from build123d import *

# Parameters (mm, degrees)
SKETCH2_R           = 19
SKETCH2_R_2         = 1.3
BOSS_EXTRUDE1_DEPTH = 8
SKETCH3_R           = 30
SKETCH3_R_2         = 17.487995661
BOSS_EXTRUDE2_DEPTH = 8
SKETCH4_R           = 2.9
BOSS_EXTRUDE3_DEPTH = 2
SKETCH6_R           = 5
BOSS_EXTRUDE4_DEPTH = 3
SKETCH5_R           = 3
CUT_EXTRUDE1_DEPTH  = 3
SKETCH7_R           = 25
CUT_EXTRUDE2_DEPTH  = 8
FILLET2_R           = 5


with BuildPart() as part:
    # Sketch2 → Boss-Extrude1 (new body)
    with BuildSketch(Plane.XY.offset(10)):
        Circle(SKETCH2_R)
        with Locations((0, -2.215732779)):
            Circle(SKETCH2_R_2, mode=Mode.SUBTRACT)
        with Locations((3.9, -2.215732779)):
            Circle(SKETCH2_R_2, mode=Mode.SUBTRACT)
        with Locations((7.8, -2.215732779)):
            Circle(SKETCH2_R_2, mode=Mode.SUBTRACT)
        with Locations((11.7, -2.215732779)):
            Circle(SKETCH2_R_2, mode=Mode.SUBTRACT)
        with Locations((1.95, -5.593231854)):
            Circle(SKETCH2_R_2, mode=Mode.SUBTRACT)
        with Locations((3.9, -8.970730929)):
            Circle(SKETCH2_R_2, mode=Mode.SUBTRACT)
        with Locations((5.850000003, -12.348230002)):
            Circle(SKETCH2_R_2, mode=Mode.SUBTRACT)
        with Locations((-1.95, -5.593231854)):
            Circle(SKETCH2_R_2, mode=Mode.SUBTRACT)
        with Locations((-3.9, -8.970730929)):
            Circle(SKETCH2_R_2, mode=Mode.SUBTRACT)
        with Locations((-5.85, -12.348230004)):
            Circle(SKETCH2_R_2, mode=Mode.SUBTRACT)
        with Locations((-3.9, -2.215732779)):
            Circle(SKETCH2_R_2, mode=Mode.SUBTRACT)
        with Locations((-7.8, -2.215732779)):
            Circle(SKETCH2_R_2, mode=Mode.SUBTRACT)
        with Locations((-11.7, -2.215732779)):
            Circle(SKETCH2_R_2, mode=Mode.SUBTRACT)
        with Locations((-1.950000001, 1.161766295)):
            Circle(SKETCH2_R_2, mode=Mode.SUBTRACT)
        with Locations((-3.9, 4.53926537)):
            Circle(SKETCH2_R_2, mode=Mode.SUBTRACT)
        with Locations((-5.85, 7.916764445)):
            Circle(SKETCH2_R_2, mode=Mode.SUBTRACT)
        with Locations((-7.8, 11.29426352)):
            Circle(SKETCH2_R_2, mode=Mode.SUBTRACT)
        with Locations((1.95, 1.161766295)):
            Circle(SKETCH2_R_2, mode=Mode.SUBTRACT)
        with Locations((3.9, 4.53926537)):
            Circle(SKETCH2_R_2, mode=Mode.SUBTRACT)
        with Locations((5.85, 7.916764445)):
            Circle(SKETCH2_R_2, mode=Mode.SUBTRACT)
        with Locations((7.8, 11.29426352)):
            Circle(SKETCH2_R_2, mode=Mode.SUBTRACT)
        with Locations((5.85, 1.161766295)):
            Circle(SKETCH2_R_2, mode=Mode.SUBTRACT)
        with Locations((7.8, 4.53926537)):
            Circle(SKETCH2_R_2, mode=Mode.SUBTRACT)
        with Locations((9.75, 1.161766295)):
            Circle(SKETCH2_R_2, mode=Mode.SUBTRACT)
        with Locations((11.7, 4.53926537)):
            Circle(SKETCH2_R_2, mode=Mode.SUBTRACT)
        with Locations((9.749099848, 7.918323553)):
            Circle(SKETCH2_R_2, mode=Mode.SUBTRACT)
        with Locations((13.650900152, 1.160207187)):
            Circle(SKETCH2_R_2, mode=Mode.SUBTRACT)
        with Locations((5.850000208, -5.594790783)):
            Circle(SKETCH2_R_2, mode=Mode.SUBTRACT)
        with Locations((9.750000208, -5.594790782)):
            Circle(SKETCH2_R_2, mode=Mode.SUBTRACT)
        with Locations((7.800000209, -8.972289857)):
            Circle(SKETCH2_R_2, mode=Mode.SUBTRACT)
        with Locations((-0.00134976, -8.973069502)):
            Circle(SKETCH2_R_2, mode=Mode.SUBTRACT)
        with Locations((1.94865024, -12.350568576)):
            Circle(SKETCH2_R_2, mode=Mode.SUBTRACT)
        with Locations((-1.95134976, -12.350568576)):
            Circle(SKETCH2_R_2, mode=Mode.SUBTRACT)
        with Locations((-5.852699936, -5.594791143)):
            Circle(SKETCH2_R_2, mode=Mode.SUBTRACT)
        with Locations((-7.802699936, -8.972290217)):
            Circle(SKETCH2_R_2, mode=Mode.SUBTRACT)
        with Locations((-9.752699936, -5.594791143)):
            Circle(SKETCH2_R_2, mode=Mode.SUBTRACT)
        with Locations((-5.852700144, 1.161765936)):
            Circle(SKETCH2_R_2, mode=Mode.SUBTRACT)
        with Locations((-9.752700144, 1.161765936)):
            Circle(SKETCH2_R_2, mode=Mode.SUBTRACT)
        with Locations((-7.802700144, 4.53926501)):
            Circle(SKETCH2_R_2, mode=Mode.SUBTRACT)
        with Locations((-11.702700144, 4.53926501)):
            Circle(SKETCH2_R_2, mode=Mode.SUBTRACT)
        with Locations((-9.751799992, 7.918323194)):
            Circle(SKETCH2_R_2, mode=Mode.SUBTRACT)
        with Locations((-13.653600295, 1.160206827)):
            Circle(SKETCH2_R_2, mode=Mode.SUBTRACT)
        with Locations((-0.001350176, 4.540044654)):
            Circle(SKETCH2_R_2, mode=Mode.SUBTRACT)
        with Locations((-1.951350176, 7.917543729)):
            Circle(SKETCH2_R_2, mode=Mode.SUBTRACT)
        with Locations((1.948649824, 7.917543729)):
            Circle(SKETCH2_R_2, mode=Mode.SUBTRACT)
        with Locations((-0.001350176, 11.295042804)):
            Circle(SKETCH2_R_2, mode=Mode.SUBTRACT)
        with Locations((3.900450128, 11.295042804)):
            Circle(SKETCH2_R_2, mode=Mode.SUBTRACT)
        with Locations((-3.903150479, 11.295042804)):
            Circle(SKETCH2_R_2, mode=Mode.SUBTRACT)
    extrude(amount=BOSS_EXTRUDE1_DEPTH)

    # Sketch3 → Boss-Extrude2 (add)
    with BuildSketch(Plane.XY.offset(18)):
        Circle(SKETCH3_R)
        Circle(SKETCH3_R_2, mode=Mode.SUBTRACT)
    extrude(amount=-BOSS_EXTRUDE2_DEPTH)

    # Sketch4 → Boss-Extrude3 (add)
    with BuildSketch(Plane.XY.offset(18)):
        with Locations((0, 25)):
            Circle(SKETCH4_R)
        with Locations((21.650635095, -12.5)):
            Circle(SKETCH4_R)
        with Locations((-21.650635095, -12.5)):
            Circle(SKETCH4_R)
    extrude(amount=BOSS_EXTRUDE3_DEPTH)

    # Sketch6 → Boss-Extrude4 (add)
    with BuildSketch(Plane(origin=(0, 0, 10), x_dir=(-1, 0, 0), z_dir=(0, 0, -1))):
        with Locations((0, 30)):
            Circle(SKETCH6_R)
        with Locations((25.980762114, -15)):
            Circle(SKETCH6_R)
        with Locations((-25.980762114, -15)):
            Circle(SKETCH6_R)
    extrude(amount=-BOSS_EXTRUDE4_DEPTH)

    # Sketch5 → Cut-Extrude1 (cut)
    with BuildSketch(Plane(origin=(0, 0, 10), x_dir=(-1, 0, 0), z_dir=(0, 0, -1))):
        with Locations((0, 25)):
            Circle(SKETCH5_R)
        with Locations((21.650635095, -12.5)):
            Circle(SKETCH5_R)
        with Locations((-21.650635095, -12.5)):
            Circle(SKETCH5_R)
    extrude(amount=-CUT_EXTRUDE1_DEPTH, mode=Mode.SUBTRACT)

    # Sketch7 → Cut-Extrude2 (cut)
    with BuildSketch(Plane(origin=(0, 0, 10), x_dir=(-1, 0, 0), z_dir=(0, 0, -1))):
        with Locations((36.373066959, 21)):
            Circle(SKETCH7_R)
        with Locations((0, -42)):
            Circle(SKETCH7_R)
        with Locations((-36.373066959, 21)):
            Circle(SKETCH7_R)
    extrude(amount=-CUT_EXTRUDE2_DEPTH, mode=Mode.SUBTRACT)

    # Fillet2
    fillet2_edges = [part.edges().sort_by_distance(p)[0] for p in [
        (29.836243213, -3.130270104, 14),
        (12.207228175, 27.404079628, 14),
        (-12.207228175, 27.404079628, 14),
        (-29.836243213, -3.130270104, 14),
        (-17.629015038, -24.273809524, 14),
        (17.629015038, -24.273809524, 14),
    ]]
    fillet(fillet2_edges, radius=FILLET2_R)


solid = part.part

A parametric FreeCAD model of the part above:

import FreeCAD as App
import Part
import Sketcher

V = App.Vector
Q = App.Units.Quantity


def edges_at(feature, points):
    """Names of the edges that pass closest to the given points."""
    edges = feature.Shape.Edges
    near = lambda p: min(range(len(edges)), key=lambda i: edges[i].distToShape(Part.Vertex(*p))[0])
    return sorted({f"Edge{near(p) + 1}" for p in points})

doc = App.newDocument("Part")
body = doc.addObject("PartDesign::Body", "Body")

# Sketch on XY plane
sketch1 = body.newObject("Sketcher::SketchObject", "Sketch")
sketch1.AttachmentSupport = (doc.getObject("XY_Plane"), [""])
sketch1.MapMode = "FlatFace"
sketch1.AttachmentOffset = App.Placement(V(0, 0, 10), App.Rotation())
sketch1.addGeometry(Part.Circle(V(0, 0, 0), V(0, 0, 1), 19), False)
sketch1.addGeometry(Part.Circle(V(-7.8, -9, 0), V(0, 0, 1), 1.3), False)
sketch1.addGeometry(Part.Circle(V(-5.8, -12.3, 0), V(0, 0, 1), 1.3), False)
sketch1.addGeometry(Part.Circle(V(-2, -12.4, 0), V(0, 0, 1), 1.3), False)
sketch1.addGeometry(Part.Circle(V(-3.9, -9, 0), V(0, 0, 1), 1.3), False)
sketch1.addGeometry(Part.Circle(V(-9.8, -5.6, 0), V(0, 0, 1), 1.3), False)
sketch1.addGeometry(Part.Circle(V(-11.7, -2.2, 0), V(0, 0, 1), 1.3), False)
sketch1.addGeometry(Part.Circle(V(-7.8, -2.2, 0), V(0, 0, 1), 1.3), False)
sketch1.addGeometry(Part.Circle(V(-5.9, -5.6, 0), V(0, 0, 1), 1.3), False)
sketch1.addGeometry(Part.Circle(V(-1.9, -5.6, 0), V(0, 0, 1), 1.3), False)
sketch1.addGeometry(Part.Circle(V(-3.9, -2.2, 0), V(0, 0, 1), 1.3), False)
sketch1.addGeometry(Part.Circle(V(1.9, -12.4, 0), V(0, 0, 1), 1.3), False)
sketch1.addGeometry(Part.Circle(V(5.9, -12.3, 0), V(0, 0, 1), 1.3), False)
sketch1.addGeometry(Part.Circle(V(0, -9, 0), V(0, 0, 1), 1.3), False)
sketch1.addGeometry(Part.Circle(V(3.9, -9, 0), V(0, 0, 1), 1.3), False)
sketch1.addGeometry(Part.Circle(V(7.8, -9, 0), V(0, 0, 1), 1.3), False)
sketch1.addGeometry(Part.Circle(V(1.9, -5.6, 0), V(0, 0, 1), 1.3), False)
sketch1.addGeometry(Part.Circle(V(5.9, -5.6, 0), V(0, 0, 1), 1.3), False)
sketch1.addGeometry(Part.Circle(V(0, -2.2, 0), V(0, 0, 1), 1.3), False)
sketch1.addGeometry(Part.Circle(V(3.9, -2.2, 0), V(0, 0, 1), 1.3), False)
sketch1.addGeometry(Part.Circle(V(9.8, -5.6, 0), V(0, 0, 1), 1.3), False)
sketch1.addGeometry(Part.Circle(V(7.8, -2.2, 0), V(0, 0, 1), 1.3), False)
sketch1.addGeometry(Part.Circle(V(11.7, -2.2, 0), V(0, 0, 1), 1.3), False)
sketch1.addGeometry(Part.Circle(V(-13.7, 1.2, 0), V(0, 0, 1), 1.3), False)
sketch1.addGeometry(Part.Circle(V(-9.8, 1.2, 0), V(0, 0, 1), 1.3), False)
sketch1.addGeometry(Part.Circle(V(-11.7, 4.5, 0), V(0, 0, 1), 1.3), False)
sketch1.addGeometry(Part.Circle(V(-7.8, 4.5, 0), V(0, 0, 1), 1.3), False)
sketch1.addGeometry(Part.Circle(V(-5.9, 1.2, 0), V(0, 0, 1), 1.3), False)
sketch1.addGeometry(Part.Circle(V(-2, 1.2, 0), V(0, 0, 1), 1.3), False)
sketch1.addGeometry(Part.Circle(V(-3.9, 4.5, 0), V(0, 0, 1), 1.3), False)
sketch1.addGeometry(Part.Circle(V(0, 4.5, 0), V(0, 0, 1), 1.3), False)
sketch1.addGeometry(Part.Circle(V(-9.8, 7.9, 0), V(0, 0, 1), 1.3), False)
sketch1.addGeometry(Part.Circle(V(-7.8, 11.3, 0), V(0, 0, 1), 1.3), False)
sketch1.addGeometry(Part.Circle(V(-5.8, 7.9, 0), V(0, 0, 1), 1.3), False)
sketch1.addGeometry(Part.Circle(V(-2, 7.9, 0), V(0, 0, 1), 1.3), False)
sketch1.addGeometry(Part.Circle(V(-3.9, 11.3, 0), V(0, 0, 1), 1.3), False)
sketch1.addGeometry(Part.Circle(V(0, 11.3, 0), V(0, 0, 1), 1.3), False)
sketch1.addGeometry(Part.Circle(V(1.9, 1.2, 0), V(0, 0, 1), 1.3), False)
sketch1.addGeometry(Part.Circle(V(5.8, 1.2, 0), V(0, 0, 1), 1.3), False)
sketch1.addGeometry(Part.Circle(V(3.9, 4.5, 0), V(0, 0, 1), 1.3), False)
sketch1.addGeometry(Part.Circle(V(9.8, 1.2, 0), V(0, 0, 1), 1.3), False)
sketch1.addGeometry(Part.Circle(V(13.7, 1.2, 0), V(0, 0, 1), 1.3), False)
sketch1.addGeometry(Part.Circle(V(7.8, 4.5, 0), V(0, 0, 1), 1.3), False)
sketch1.addGeometry(Part.Circle(V(11.7, 4.5, 0), V(0, 0, 1), 1.3), False)
sketch1.addGeometry(Part.Circle(V(1.9, 7.9, 0), V(0, 0, 1), 1.3), False)
sketch1.addGeometry(Part.Circle(V(5.8, 7.9, 0), V(0, 0, 1), 1.3), False)
sketch1.addGeometry(Part.Circle(V(3.9, 11.3, 0), V(0, 0, 1), 1.3), False)
sketch1.addGeometry(Part.Circle(V(9.7, 7.9, 0), V(0, 0, 1), 1.3), False)
sketch1.addGeometry(Part.Circle(V(7.8, 11.3, 0), V(0, 0, 1), 1.3), False)
sketch1.addConstraint(Sketcher.Constraint("Coincident", 0, 3, -1, 1))
sketch1.addConstraint(Sketcher.Constraint("Equal", 1, 2))
sketch1.addConstraint(Sketcher.Constraint("Equal", 2, 3))
sketch1.addConstraint(Sketcher.Constraint("Equal", 3, 4))
sketch1.addConstraint(Sketcher.Constraint("Equal", 4, 5))
sketch1.addConstraint(Sketcher.Constraint("Equal", 5, 6))
sketch1.addConstraint(Sketcher.Constraint("Equal", 6, 7))
sketch1.addConstraint(Sketcher.Constraint("Equal", 7, 8))
sketch1.addConstraint(Sketcher.Constraint("Equal", 8, 9))
sketch1.addConstraint(Sketcher.Constraint("Equal", 9, 10))
sketch1.addConstraint(Sketcher.Constraint("Equal", 10, 11))
sketch1.addConstraint(Sketcher.Constraint("Equal", 11, 12))
sketch1.addConstraint(Sketcher.Constraint("Equal", 12, 13))
sketch1.addConstraint(Sketcher.Constraint("Equal", 13, 14))
sketch1.addConstraint(Sketcher.Constraint("Equal", 14, 15))
sketch1.addConstraint(Sketcher.Constraint("Equal", 15, 16))
sketch1.addConstraint(Sketcher.Constraint("Equal", 16, 17))
sketch1.addConstraint(Sketcher.Constraint("Equal", 17, 18))
sketch1.addConstraint(Sketcher.Constraint("Equal", 18, 19))
sketch1.addConstraint(Sketcher.Constraint("Equal", 19, 20))
sketch1.addConstraint(Sketcher.Constraint("Equal", 20, 21))
sketch1.addConstraint(Sketcher.Constraint("Equal", 21, 22))
sketch1.addConstraint(Sketcher.Constraint("Equal", 22, 23))
sketch1.addConstraint(Sketcher.Constraint("Equal", 23, 24))
sketch1.addConstraint(Sketcher.Constraint("Equal", 24, 25))
sketch1.addConstraint(Sketcher.Constraint("Equal", 25, 26))
sketch1.addConstraint(Sketcher.Constraint("Equal", 26, 27))
sketch1.addConstraint(Sketcher.Constraint("Equal", 27, 28))
sketch1.addConstraint(Sketcher.Constraint("Equal", 28, 29))
sketch1.addConstraint(Sketcher.Constraint("Equal", 29, 30))
sketch1.addConstraint(Sketcher.Constraint("Equal", 30, 31))
sketch1.addConstraint(Sketcher.Constraint("Equal", 31, 32))
sketch1.addConstraint(Sketcher.Constraint("Equal", 32, 33))
sketch1.addConstraint(Sketcher.Constraint("Equal", 33, 34))
sketch1.addConstraint(Sketcher.Constraint("Equal", 34, 35))
sketch1.addConstraint(Sketcher.Constraint("Equal", 35, 36))
sketch1.addConstraint(Sketcher.Constraint("Equal", 36, 37))
sketch1.addConstraint(Sketcher.Constraint("Equal", 37, 38))
sketch1.addConstraint(Sketcher.Constraint("Equal", 38, 39))
sketch1.addConstraint(Sketcher.Constraint("Equal", 39, 40))
sketch1.addConstraint(Sketcher.Constraint("Equal", 40, 41))
sketch1.addConstraint(Sketcher.Constraint("Equal", 41, 42))
sketch1.addConstraint(Sketcher.Constraint("Equal", 42, 43))
sketch1.addConstraint(Sketcher.Constraint("Equal", 43, 44))
sketch1.addConstraint(Sketcher.Constraint("Equal", 44, 45))
sketch1.addConstraint(Sketcher.Constraint("Equal", 45, 46))
sketch1.addConstraint(Sketcher.Constraint("Equal", 46, 47))
sketch1.addConstraint(Sketcher.Constraint("Equal", 47, 48))
sketch1.addConstraint(Sketcher.Constraint("Symmetric", 2, 3, 12, 3, -2))
sketch1.addConstraint(Sketcher.Constraint("Symmetric", 4, 3, 14, 3, -2))
sketch1.addConstraint(Sketcher.Constraint("Symmetric", 9, 3, 16, 3, -2))
sketch1.addConstraint(Sketcher.Constraint("Symmetric", 10, 3, 19, 3, -2))
sketch1.addConstraint(Sketcher.Constraint("Symmetric", 7, 3, 21, 3, -2))
sketch1.addConstraint(Sketcher.Constraint("Symmetric", 6, 3, 22, 3, -2))
sketch1.addConstraint(Sketcher.Constraint("Symmetric", 28, 3, 37, 3, -2))
sketch1.addConstraint(Sketcher.Constraint("Symmetric", 29, 3, 39, 3, -2))
sketch1.addConstraint(Sketcher.Constraint("Symmetric", 33, 3, 45, 3, -2))
sketch1.addConstraint(Sketcher.Constraint("Symmetric", 32, 3, 48, 3, -2))
sketch1.addConstraint(Sketcher.Constraint("PointOnObject", 18, 3, -2))
sketch1.addConstraint(Sketcher.Constraint("Horizontal", 6, 3, 7, 3))
sketch1.addConstraint(Sketcher.Constraint("Horizontal", 5, 3, 8, 3))
sketch1.addConstraint(Sketcher.Constraint("Horizontal", 7, 3, 10, 3))
sketch1.addConstraint(Sketcher.Constraint("Horizontal", 3, 3, 11, 3))
sketch1.addConstraint(Sketcher.Constraint("Horizontal", 1, 3, 15, 3))
sketch1.addConstraint(Sketcher.Constraint("Horizontal", 8, 3, 17, 3))
sketch1.addConstraint(Sketcher.Constraint("Horizontal", 10, 3, 18, 3))
sketch1.addConstraint(Sketcher.Constraint("Horizontal", 17, 3, 20, 3))
sketch1.addConstraint(Sketcher.Constraint("Horizontal", 25, 3, 26, 3))
sketch1.addConstraint(Sketcher.Constraint("Horizontal", 24, 3, 27, 3))
sketch1.addConstraint(Sketcher.Constraint("Horizontal", 27, 3, 28, 3))
sketch1.addConstraint(Sketcher.Constraint("Horizontal", 26, 3, 29, 3))
sketch1.addConstraint(Sketcher.Constraint("Horizontal", 35, 3, 36, 3))
sketch1.addConstraint(Sketcher.Constraint("Horizontal", 37, 3, 38, 3))
sketch1.addConstraint(Sketcher.Constraint("Horizontal", 38, 3, 40, 3))
sketch1.addConstraint(Sketcher.Constraint("Horizontal", 23, 3, 41, 3))
sketch1.addConstraint(Sketcher.Constraint("Horizontal", 39, 3, 42, 3))
sketch1.addConstraint(Sketcher.Constraint("Horizontal", 42, 3, 43, 3))
sketch1.addConstraint(Sketcher.Constraint("Horizontal", 34, 3, 44, 3))
sketch1.addConstraint(Sketcher.Constraint("Horizontal", 36, 3, 46, 3))
sketch1.addConstraint(Sketcher.Constraint("Horizontal", 31, 3, 47, 3))
sketch1.addConstraint(Sketcher.Constraint("Vertical", 4, 3, 10, 3))
sketch1.addConstraint(Sketcher.Constraint("Vertical", 12, 3, 17, 3))
sketch1.addConstraint(Sketcher.Constraint("Vertical", 15, 3, 21, 3))
sketch1.addConstraint(Sketcher.Constraint("Vertical", 5, 3, 24, 3))
sketch1.addConstraint(Sketcher.Constraint("Vertical", 1, 3, 26, 3))
sketch1.addConstraint(Sketcher.Constraint("Vertical", 8, 3, 27, 3))
sketch1.addConstraint(Sketcher.Constraint("Vertical", 9, 3, 28, 3))
sketch1.addConstraint(Sketcher.Constraint("Vertical", 10, 3, 29, 3))
sketch1.addConstraint(Sketcher.Constraint("Vertical", 13, 3, 30, 3))
sketch1.addConstraint(Sketcher.Constraint("Vertical", 7, 3, 32, 3))
sketch1.addConstraint(Sketcher.Constraint("Vertical", 2, 3, 33, 3))
sketch1.addConstraint(Sketcher.Constraint("Vertical", 3, 3, 34, 3))
sketch1.addConstraint(Sketcher.Constraint("Vertical", 30, 3, 36, 3))
sketch1.addConstraint(Sketcher.Constraint("Vertical", 17, 3, 38, 3))
sketch1.addConstraint(Sketcher.Constraint("Vertical", 20, 3, 40, 3))
sketch1.addConstraint(Sketcher.Constraint("Vertical", 21, 3, 42, 3))
sketch1.addConstraint(Sketcher.Constraint("Vertical", 22, 3, 43, 3))
sketch1.addConstraint(Sketcher.Constraint("Vertical", 11, 3, 44, 3))
sketch1.addConstraint(Sketcher.Constraint("Diameter", 0, Q("38 mm")))
sketch1.addConstraint(Sketcher.Constraint("Diameter", 1, Q("2.6 mm")))
sketch1.addConstraint(Sketcher.Constraint("DistanceX", 4, 3, -1, 1, Q("3.9 mm")))
sketch1.addConstraint(Sketcher.Constraint("DistanceX", 6, 3, -1, 1, Q("11.7 mm")))
sketch1.addConstraint(Sketcher.Constraint("DistanceX", 7, 3, -1, 1, Q("7.8 mm")))
sketch1.addConstraint(Sketcher.Constraint("DistanceX", 5, 3, 8, 3, Q("3.9 mm")))
sketch1.addConstraint(Sketcher.Constraint("DistanceX", 3, 3, 11, 3, Q("3.9 mm")))
sketch1.addConstraint(Sketcher.Constraint("DistanceX", 9, 3, 12, 3, Q("7.8 mm")))
sketch1.addConstraint(Sketcher.Constraint("DistanceX", 2, 3, 12, 3, Q("11.7 mm")))
sketch1.addConstraint(Sketcher.Constraint("DistanceX", 17, 3, 20, 3, Q("3.9 mm")))
sketch1.addConstraint(Sketcher.Constraint("DistanceX", 25, 3, 26, 3, Q("3.9 mm")))
sketch1.addConstraint(Sketcher.Constraint("DistanceX", 5, 3, 1, 3, Q("1.95 mm")))
sketch1.addConstraint(Sketcher.Constraint("DistanceX", 3, 3, 13, 3, Q("1.95 mm")))
sketch1.addConstraint(Sketcher.Constraint("DistanceY", 4, 3, 6, 3, Q("6.754998 mm")))
sketch1.addConstraint(Sketcher.Constraint("DistanceY", 12, 3, 9, 3, Q("6.754998 mm")))
sketch1.addConstraint(Sketcher.Constraint("DistanceY", 10, 3, 29, 3, Q("6.754998 mm")))
sketch1.addConstraint(Sketcher.Constraint("DistanceY", 26, 3, 32, 3, Q("6.754999 mm")))
sketch1.addConstraint(Sketcher.Constraint("DistanceY", 30, 3, 36, 3, Q("6.754998 mm")))
sketch1.addConstraint(Sketcher.Constraint("DistanceY", 38, 3, 45, 3, Q("6.754998 mm")))
sketch1.addConstraint(Sketcher.Constraint("DistanceX", 1, 3, -1, 1, Q("7.8027 mm")))
sketch1.addConstraint(Sketcher.Constraint("DistanceX", 23, 3, -1, 1, Q("13.6536 mm")))
sketch1.addConstraint(Sketcher.Constraint("DistanceX", 31, 3, -1, 1, Q("9.7518 mm")))
sketch1.addConstraint(Sketcher.Constraint("DistanceX", -1, 1, 41, 3, Q("13.6509 mm")))
sketch1.addConstraint(Sketcher.Constraint("DistanceX", -1, 1, 47, 3, Q("9.7491 mm")))
sketch1.addConstraint(Sketcher.Constraint("DistanceY", 2, 3, 4, 3, Q("3.377499 mm")))
sketch1.addConstraint(Sketcher.Constraint("DistanceY", 1, 3, 5, 3, Q("3.377499 mm")))
sketch1.addConstraint(Sketcher.Constraint("DistanceY", 3, 3, 13, 3, Q("3.377499 mm")))
sketch1.addConstraint(Sketcher.Constraint("DistanceY", 6, 3, 24, 3, Q("3.377499 mm")))
sketch1.addConstraint(Sketcher.Constraint("DistanceY", 30, 3, 34, 3, Q("3.377499 mm")))
sketch1.addConstraint(Sketcher.Constraint("DistanceX", 35, 3, 34, 3, Q("1.9518 mm")))
sketch1.addConstraint(Sketcher.Constraint("DistanceX", 44, 3, 46, 3, Q("1.9518 mm")))
sketch1.addConstraint(Sketcher.Constraint("DistanceY", 1, 3, -1, 1, Q("8.97229 mm")))
sketch1.addConstraint(Sketcher.Constraint("DistanceY", 2, 3, -1, 1, Q("12.34823 mm")))
sketch1.addConstraint(Sketcher.Constraint("DistanceX", 3, 3, -1, 1, Q("1.95135 mm")))
sketch1.addConstraint(Sketcher.Constraint("DistanceY", 3, 3, -1, 1, Q("12.350569 mm")))
sketch1.addConstraint(Sketcher.Constraint("DistanceY", 6, 3, 23, 3, Q("3.37594 mm")))
sketch1.addConstraint(Sketcher.Constraint("DistanceY", 29, 3, 30, 3, Q("0.000779 mm")))
sketch1.addConstraint(Sketcher.Constraint("DistanceY", 26, 3, 31, 3, Q("3.379058 mm")))
pad1 = body.newObject("PartDesign::Pad", "Pad")
pad1.Profile = sketch1
pad1.Length = 8

# Sketch on XY plane
sketch2 = body.newObject("Sketcher::SketchObject", "Sketch001")
sketch2.AttachmentSupport = (doc.getObject("XY_Plane"), [""])
sketch2.MapMode = "FlatFace"
sketch2.AttachmentOffset = App.Placement(V(0, 0, 18), App.Rotation())
sketch2.addGeometry(Part.Circle(V(0, 0, 0), V(0, 0, 1), 30), False)
sketch2.addGeometry(Part.Circle(V(0, 0, 0), V(0, 0, 1), 17), False)
sketch2.addConstraint(Sketcher.Constraint("Coincident", 0, 3, -1, 1))
sketch2.addConstraint(Sketcher.Constraint("Coincident", 1, 3, -1, 1))
sketch2.addConstraint(Sketcher.Constraint("Diameter", 0, Q("60 mm")))
sketch2.addConstraint(Sketcher.Constraint("Diameter", 1, Q("34.975991 mm")))
pad2 = body.newObject("PartDesign::Pad", "Pad001")
pad2.Profile = sketch2
pad2.Length = 8
pad2.Reversed = True

# Sketch on XY plane
sketch3 = body.newObject("Sketcher::SketchObject", "Sketch002")
sketch3.AttachmentSupport = (doc.getObject("XY_Plane"), [""])
sketch3.MapMode = "FlatFace"
sketch3.AttachmentOffset = App.Placement(V(0, 0, 18), App.Rotation())
sketch3.addGeometry(Part.Circle(V(0, 25, 0), V(0, 0, 1), 2.9), False)
sketch3.addGeometry(Part.Circle(V(21.7, -12.5, 0), V(0, 0, 1), 2.9), False)
sketch3.addGeometry(Part.Circle(V(-21.7, -12.5, 0), V(0, 0, 1), 2.9), False)
sketch3.addConstraint(Sketcher.Constraint("Equal", 0, 1))
sketch3.addConstraint(Sketcher.Constraint("Equal", 1, 2))
sketch3.addConstraint(Sketcher.Constraint("Symmetric", 1, 3, 2, 3, -2))
sketch3.addConstraint(Sketcher.Constraint("PointOnObject", 0, 3, -2))
sketch3.addConstraint(Sketcher.Constraint("Diameter", 0, Q("5.8 mm")))
sketch3.addConstraint(Sketcher.Constraint("DistanceY", -1, 1, 0, 3, Q("25 mm")))
sketch3.addConstraint(Sketcher.Constraint("DistanceY", 1, 3, -1, 1, Q("12.5 mm")))
sketch3.addConstraint(Sketcher.Constraint("DistanceX", 2, 3, 1, 3, Q("43.30127 mm")))
pad3 = body.newObject("PartDesign::Pad", "Pad002")
pad3.Profile = sketch3
pad3.Length = 2

# Sketch on XY plane
sketch4 = body.newObject("Sketcher::SketchObject", "Sketch003")
sketch4.AttachmentSupport = (doc.getObject("XY_Plane"), [""])
sketch4.MapMode = "FlatFace"
sketch4.AttachmentOffset = App.Placement(V(0, 0, 10), App.Rotation())
sketch4.addGeometry(Part.Circle(V(0, 30, 0), V(0, 0, 1), 5), False)
sketch4.addGeometry(Part.Circle(V(-26, -15, 0), V(0, 0, 1), 5), False)
sketch4.addGeometry(Part.Circle(V(26, -15, 0), V(0, 0, 1), 5), False)
sketch4.addConstraint(Sketcher.Constraint("Equal", 0, 1))
sketch4.addConstraint(Sketcher.Constraint("Equal", 1, 2))
sketch4.addConstraint(Sketcher.Constraint("Symmetric", 1, 3, 2, 3, -2))
sketch4.addConstraint(Sketcher.Constraint("PointOnObject", 0, 3, -2))
sketch4.addConstraint(Sketcher.Constraint("Diameter", 0, Q("10 mm")))
sketch4.addConstraint(Sketcher.Constraint("DistanceY", -1, 1, 0, 3, Q("30 mm")))
sketch4.addConstraint(Sketcher.Constraint("DistanceY", 1, 3, -1, 1, Q("15 mm")))
sketch4.addConstraint(Sketcher.Constraint("DistanceX", 1, 3, -1, 1, Q("25.980762 mm")))
pad4 = body.newObject("PartDesign::Pad", "Pad003")
pad4.Profile = sketch4
pad4.Length = 3

# Sketch on XY plane
sketch5 = body.newObject("Sketcher::SketchObject", "Sketch004")
sketch5.AttachmentSupport = (doc.getObject("XY_Plane"), [""])
sketch5.MapMode = "FlatFace"
sketch5.AttachmentOffset = App.Placement(V(0, 0, 10), App.Rotation())
sketch5.addGeometry(Part.Circle(V(0, 25, 0), V(0, 0, 1), 3), False)
sketch5.addGeometry(Part.Circle(V(-21.7, -12.5, 0), V(0, 0, 1), 3), False)
sketch5.addGeometry(Part.Circle(V(21.7, -12.5, 0), V(0, 0, 1), 3), False)
sketch5.addConstraint(Sketcher.Constraint("Equal", 0, 1))
sketch5.addConstraint(Sketcher.Constraint("Equal", 1, 2))
sketch5.addConstraint(Sketcher.Constraint("Symmetric", 1, 3, 2, 3, -2))
sketch5.addConstraint(Sketcher.Constraint("PointOnObject", 0, 3, -2))
sketch5.addConstraint(Sketcher.Constraint("Diameter", 0, Q("6 mm")))
sketch5.addConstraint(Sketcher.Constraint("DistanceY", -1, 1, 0, 3, Q("25 mm")))
sketch5.addConstraint(Sketcher.Constraint("DistanceY", 1, 3, -1, 1, Q("12.5 mm")))
sketch5.addConstraint(Sketcher.Constraint("DistanceX", 1, 3, 2, 3, Q("43.30127 mm")))
pocket1 = body.newObject("PartDesign::Pocket", "Pocket")
pocket1.Profile = sketch5
pocket1.Length = 3
pocket1.Reversed = True

# Sketch on XY plane
sketch6 = body.newObject("Sketcher::SketchObject", "Sketch005")
sketch6.AttachmentSupport = (doc.getObject("XY_Plane"), [""])
sketch6.MapMode = "FlatFace"
sketch6.AttachmentOffset = App.Placement(V(0, 0, 10), App.Rotation())
sketch6.addGeometry(Part.Circle(V(-36, 21, 0), V(0, 0, 1), 25), False)
sketch6.addGeometry(Part.Circle(V(0, -42, 0), V(0, 0, 1), 25), False)
sketch6.addGeometry(Part.Circle(V(36, 21, 0), V(0, 0, 1), 25), False)
sketch6.addConstraint(Sketcher.Constraint("Equal", 0, 1))
sketch6.addConstraint(Sketcher.Constraint("Equal", 1, 2))
sketch6.addConstraint(Sketcher.Constraint("Symmetric", 0, 3, 2, 3, -2))
sketch6.addConstraint(Sketcher.Constraint("PointOnObject", 1, 3, -2))
sketch6.addConstraint(Sketcher.Constraint("Diameter", 0, Q("50 mm")))
sketch6.addConstraint(Sketcher.Constraint("DistanceY", -1, 1, 0, 3, Q("21 mm")))
sketch6.addConstraint(Sketcher.Constraint("DistanceY", 1, 3, -1, 1, Q("42 mm")))
sketch6.addConstraint(Sketcher.Constraint("DistanceX", 0, 3, -1, 1, Q("36.373067 mm")))
pocket2 = body.newObject("PartDesign::Pocket", "Pocket001")
pocket2.Profile = sketch6
pocket2.Length = 8
pocket2.Reversed = True
doc.recompute()

fillet = body.newObject("PartDesign::Fillet", "Fillet")
fillet.Base = (pocket2, edges_at(pocket2, [
    (29.836, -3.13, 14),
    (12.207, 27.404, 14),
    (-12.207, 27.404, 14),
    (-29.836, -3.13, 14),
    (-17.629, -24.274, 14),
    (17.629, -24.274, 14),
]))
fillet.Radius = 5

doc.recompute()
